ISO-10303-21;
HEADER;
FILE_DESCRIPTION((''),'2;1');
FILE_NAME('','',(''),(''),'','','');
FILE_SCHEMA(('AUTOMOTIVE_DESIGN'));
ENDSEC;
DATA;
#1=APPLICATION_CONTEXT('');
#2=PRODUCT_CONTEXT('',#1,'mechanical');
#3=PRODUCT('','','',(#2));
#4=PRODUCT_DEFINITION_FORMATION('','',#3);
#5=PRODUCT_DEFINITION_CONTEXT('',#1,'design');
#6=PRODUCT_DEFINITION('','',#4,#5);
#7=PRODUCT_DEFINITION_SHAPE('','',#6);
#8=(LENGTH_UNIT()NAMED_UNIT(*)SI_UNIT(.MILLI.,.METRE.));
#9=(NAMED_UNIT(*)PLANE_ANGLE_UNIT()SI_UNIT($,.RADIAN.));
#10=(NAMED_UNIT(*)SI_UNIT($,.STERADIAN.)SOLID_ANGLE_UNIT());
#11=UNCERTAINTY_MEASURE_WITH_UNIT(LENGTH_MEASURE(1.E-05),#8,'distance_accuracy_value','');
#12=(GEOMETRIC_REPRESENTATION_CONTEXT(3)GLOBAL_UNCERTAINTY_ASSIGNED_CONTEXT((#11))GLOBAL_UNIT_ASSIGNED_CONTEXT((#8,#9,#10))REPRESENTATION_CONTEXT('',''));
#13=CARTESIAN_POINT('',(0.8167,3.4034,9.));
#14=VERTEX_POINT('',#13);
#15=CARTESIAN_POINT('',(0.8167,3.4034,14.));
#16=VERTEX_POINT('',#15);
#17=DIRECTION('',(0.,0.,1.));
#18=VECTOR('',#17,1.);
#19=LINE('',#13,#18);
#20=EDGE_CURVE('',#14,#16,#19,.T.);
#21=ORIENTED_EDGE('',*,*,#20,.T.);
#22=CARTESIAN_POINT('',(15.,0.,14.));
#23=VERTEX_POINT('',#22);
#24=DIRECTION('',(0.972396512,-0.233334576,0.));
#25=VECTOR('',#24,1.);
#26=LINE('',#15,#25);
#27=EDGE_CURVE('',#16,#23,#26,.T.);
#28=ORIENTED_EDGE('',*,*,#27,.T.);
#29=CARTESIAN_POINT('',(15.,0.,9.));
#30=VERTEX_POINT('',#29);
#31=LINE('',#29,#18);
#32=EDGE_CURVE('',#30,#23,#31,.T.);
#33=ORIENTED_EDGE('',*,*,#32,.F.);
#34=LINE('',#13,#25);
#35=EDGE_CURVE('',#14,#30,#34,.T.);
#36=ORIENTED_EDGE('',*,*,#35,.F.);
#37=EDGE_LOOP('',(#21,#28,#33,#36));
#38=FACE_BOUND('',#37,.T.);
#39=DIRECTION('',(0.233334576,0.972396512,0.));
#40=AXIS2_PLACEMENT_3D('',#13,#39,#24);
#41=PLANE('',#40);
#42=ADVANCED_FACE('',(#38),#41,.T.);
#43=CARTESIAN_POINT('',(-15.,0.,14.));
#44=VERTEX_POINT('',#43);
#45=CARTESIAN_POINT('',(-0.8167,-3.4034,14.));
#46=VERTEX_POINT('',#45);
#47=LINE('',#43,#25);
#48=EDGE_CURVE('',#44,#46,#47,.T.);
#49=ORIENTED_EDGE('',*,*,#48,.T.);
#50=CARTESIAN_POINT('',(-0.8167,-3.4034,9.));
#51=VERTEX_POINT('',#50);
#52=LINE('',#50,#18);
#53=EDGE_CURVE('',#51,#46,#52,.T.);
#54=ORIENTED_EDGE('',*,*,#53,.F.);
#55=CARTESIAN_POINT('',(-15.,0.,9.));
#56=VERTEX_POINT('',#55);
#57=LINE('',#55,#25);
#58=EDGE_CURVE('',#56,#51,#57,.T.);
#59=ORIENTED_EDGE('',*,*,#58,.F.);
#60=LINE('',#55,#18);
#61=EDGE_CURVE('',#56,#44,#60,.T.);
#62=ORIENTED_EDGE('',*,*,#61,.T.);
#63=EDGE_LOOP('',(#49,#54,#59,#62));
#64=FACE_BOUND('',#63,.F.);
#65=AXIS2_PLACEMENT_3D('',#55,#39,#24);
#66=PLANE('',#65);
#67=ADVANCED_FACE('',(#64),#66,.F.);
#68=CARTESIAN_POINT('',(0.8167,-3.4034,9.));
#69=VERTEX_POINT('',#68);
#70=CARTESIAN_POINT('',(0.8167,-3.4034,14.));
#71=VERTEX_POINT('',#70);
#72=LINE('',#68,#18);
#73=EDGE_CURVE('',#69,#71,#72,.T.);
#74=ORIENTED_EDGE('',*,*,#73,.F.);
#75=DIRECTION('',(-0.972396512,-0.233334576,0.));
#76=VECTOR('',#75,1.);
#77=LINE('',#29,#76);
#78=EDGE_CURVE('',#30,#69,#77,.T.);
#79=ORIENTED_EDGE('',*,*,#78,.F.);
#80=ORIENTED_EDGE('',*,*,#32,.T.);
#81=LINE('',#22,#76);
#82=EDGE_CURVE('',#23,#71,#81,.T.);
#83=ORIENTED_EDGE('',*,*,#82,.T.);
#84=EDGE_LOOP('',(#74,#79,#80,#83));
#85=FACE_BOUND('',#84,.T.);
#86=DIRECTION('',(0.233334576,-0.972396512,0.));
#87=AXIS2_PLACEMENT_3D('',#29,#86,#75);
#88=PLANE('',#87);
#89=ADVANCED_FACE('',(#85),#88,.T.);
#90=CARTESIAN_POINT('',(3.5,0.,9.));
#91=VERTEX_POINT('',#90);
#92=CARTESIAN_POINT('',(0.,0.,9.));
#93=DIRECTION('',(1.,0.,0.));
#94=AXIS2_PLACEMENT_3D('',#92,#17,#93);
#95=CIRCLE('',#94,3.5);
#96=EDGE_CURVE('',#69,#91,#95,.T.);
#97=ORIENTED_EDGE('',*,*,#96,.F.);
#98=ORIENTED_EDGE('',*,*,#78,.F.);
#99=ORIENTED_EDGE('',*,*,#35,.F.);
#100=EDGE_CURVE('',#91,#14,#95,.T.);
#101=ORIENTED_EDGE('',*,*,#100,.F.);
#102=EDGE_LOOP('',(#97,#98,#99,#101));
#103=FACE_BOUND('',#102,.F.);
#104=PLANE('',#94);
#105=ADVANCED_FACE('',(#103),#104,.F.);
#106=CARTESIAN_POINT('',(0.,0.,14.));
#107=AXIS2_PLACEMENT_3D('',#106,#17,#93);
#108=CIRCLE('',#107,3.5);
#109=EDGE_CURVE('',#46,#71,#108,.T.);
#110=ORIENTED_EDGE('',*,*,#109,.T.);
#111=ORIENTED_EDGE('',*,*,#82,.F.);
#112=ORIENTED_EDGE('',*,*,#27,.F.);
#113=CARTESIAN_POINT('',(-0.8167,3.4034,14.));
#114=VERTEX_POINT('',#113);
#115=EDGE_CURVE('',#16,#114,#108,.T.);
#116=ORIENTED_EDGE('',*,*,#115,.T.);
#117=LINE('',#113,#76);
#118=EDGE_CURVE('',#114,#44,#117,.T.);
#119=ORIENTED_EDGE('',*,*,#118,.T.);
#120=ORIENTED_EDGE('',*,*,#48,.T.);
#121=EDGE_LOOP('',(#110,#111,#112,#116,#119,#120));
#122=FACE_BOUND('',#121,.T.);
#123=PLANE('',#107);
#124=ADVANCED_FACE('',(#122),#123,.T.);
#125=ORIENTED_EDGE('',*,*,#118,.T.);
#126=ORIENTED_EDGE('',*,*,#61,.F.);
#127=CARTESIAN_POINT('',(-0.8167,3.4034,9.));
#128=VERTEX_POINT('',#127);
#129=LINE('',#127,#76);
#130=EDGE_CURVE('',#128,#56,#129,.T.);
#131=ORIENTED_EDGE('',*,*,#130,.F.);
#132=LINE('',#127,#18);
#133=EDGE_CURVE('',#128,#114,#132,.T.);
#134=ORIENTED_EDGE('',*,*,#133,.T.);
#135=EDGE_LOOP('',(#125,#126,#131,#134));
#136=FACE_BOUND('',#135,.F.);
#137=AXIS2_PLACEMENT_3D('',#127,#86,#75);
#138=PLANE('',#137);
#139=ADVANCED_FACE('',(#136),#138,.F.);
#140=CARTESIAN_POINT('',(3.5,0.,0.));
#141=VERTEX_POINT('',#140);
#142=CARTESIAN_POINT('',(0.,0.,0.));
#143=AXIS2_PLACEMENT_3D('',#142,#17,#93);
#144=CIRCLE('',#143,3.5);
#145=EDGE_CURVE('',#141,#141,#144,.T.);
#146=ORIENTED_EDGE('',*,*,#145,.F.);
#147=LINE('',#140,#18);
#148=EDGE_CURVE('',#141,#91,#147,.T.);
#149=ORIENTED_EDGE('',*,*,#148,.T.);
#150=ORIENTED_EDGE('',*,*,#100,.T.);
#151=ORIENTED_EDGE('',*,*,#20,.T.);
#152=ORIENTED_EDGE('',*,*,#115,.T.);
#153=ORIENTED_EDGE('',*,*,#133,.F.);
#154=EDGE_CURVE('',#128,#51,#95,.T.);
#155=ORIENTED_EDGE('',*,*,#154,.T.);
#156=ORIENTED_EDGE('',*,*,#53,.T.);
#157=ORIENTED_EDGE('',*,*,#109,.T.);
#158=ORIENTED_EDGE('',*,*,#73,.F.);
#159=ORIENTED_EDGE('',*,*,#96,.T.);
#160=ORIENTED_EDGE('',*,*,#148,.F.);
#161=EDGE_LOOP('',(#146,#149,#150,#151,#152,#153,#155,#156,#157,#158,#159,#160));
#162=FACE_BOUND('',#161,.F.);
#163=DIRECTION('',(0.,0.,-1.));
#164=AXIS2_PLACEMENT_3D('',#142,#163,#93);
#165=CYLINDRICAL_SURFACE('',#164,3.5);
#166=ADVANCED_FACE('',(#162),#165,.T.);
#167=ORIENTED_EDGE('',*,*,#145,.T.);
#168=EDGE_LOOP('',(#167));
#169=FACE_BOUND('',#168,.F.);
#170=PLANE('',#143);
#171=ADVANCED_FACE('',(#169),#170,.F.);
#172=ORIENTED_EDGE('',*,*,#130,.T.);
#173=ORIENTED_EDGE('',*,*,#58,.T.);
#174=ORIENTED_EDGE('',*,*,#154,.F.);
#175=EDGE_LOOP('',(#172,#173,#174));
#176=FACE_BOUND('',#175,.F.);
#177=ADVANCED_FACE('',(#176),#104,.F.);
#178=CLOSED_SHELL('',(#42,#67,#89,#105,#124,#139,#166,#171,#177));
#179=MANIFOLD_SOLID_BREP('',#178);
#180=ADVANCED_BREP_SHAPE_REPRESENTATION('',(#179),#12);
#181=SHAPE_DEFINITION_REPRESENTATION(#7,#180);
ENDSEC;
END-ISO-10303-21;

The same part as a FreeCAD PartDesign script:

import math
import FreeCAD as App
import Part
import Sketcher

doc = App.newDocument("Part")
params = doc.addObject("Spreadsheet::Sheet", "Params")
for row, (alias, value) in enumerate([
    ("sketch1_diameter", "7 mm"),
    ("pad1_length", "9 mm"),
    ("sketch2_radius", "3.5 mm"),
    ("pad2_length", "5 mm"),
], start=1):
    params.set(f"A{row}", alias)
    params.set(f"B{row}", "=" + value)
    params.setAlias(f"B{row}", alias)

body = doc.addObject("PartDesign::Body", "Body")

# Sketch on XY plane
sketch1 = doc.addObject("Sketcher::SketchObject", "Sketch")
body.addObject(sketch1)
sketch1.AttachmentSupport = (doc.XY_Plane, [""])
sketch1.MapMode = "FlatFace"
sketch1.addGeometry(Part.Circle(App.Vector(0, 0, 0), App.Vector(0, 0, 1), 3.5), False)
sketch1.addConstraint([
    Sketcher.Constraint("Coincident", 0, 3, -1, 1),
    Sketcher.Constraint("Diameter", 0, 7.0),
])
sketch1.setExpression("Constraints[1]", "Params.sketch1_diameter")
pad1 = doc.addObject("PartDesign::Pad", "Pad")
body.addObject(pad1)
pad1.Profile = sketch1
pad1.setExpression("Length", "Params.pad1_length")

# Sketch on XY plane
sketch2 = doc.addObject("Sketcher::SketchObject", "Sketch001")
body.addObject(sketch2)
sketch2.AttachmentSupport = (doc.XY_Plane, [""])
sketch2.MapMode = "FlatFace"
sketch2.AttachmentOffset = App.Placement(App.Vector(0, 0, 9), App.Rotation())
sketch2.addGeometry([
    Part.ArcOfCircle(Part.Circle(App.Vector(0, 0, 0), App.Vector(0, 0, 1), 3.5), math.radians(-103.493887), math.radians(-76.506113)),  # 0
    Part.LineSegment(App.Vector(0.8167, -3.4034, 0), App.Vector(15, 0, 0)),  # 1
    Part.LineSegment(App.Vector(15, 0, 0), App.Vector(0.8167, 3.4034, 0)),  # 2
    Part.ArcOfCircle(Part.Circle(App.Vector(0, 0, 0), App.Vector(0, 0, 1), 3.5), math.radians(76.506113), math.radians(103.493887)),  # 3
    Part.LineSegment(App.Vector(-0.8167, 3.4034, 0), App.Vector(-15, 0, 0)),  # 4
    Part.LineSegment(App.Vector(-15, 0, 0), App.Vector(-0.8167, -3.4034, 0)),  # 5
], False)
sketch2.addConstraint([
    Sketcher.Constraint("Tangent", 0, 2, 1, 1),
    Sketcher.Constraint("Coincident", 1, 2, 2, 1),
    Sketcher.Constraint("Tangent", 2, 2, 3, 1),
    Sketcher.Constraint("Tangent", 3, 2, 4, 1),
    Sketcher.Constraint("Coincident", 4, 2, 5, 1),
    Sketcher.Constraint("Tangent", 5, 2, 0, 1),
    Sketcher.Constraint("Coincident", 0, 3, -1, 1),
    Sketcher.Constraint("Coincident", 3, 3, -1, 1),
    Sketcher.Constraint("Equal", 0, 3),
    Sketcher.Constraint("Symmetric", 1, 2, 4, 2, -1, 1),
    Sketcher.Constraint("PointOnObject", 1, 2, -1),
    Sketcher.Constraint("Radius", 0, 3.5),
    Sketcher.Constraint("DistanceX", -1, 1, 1, 2, 15.0),
])
sketch2.setExpression("Constraints[11]", "Params.sketch2_radius")
pad2 = doc.addObject("PartDesign::Pad", "Pad001")
body.addObject(pad2)
pad2.Profile = sketch2
pad2.setExpression("Length", "Params.pad2_length")

doc.recompute()
